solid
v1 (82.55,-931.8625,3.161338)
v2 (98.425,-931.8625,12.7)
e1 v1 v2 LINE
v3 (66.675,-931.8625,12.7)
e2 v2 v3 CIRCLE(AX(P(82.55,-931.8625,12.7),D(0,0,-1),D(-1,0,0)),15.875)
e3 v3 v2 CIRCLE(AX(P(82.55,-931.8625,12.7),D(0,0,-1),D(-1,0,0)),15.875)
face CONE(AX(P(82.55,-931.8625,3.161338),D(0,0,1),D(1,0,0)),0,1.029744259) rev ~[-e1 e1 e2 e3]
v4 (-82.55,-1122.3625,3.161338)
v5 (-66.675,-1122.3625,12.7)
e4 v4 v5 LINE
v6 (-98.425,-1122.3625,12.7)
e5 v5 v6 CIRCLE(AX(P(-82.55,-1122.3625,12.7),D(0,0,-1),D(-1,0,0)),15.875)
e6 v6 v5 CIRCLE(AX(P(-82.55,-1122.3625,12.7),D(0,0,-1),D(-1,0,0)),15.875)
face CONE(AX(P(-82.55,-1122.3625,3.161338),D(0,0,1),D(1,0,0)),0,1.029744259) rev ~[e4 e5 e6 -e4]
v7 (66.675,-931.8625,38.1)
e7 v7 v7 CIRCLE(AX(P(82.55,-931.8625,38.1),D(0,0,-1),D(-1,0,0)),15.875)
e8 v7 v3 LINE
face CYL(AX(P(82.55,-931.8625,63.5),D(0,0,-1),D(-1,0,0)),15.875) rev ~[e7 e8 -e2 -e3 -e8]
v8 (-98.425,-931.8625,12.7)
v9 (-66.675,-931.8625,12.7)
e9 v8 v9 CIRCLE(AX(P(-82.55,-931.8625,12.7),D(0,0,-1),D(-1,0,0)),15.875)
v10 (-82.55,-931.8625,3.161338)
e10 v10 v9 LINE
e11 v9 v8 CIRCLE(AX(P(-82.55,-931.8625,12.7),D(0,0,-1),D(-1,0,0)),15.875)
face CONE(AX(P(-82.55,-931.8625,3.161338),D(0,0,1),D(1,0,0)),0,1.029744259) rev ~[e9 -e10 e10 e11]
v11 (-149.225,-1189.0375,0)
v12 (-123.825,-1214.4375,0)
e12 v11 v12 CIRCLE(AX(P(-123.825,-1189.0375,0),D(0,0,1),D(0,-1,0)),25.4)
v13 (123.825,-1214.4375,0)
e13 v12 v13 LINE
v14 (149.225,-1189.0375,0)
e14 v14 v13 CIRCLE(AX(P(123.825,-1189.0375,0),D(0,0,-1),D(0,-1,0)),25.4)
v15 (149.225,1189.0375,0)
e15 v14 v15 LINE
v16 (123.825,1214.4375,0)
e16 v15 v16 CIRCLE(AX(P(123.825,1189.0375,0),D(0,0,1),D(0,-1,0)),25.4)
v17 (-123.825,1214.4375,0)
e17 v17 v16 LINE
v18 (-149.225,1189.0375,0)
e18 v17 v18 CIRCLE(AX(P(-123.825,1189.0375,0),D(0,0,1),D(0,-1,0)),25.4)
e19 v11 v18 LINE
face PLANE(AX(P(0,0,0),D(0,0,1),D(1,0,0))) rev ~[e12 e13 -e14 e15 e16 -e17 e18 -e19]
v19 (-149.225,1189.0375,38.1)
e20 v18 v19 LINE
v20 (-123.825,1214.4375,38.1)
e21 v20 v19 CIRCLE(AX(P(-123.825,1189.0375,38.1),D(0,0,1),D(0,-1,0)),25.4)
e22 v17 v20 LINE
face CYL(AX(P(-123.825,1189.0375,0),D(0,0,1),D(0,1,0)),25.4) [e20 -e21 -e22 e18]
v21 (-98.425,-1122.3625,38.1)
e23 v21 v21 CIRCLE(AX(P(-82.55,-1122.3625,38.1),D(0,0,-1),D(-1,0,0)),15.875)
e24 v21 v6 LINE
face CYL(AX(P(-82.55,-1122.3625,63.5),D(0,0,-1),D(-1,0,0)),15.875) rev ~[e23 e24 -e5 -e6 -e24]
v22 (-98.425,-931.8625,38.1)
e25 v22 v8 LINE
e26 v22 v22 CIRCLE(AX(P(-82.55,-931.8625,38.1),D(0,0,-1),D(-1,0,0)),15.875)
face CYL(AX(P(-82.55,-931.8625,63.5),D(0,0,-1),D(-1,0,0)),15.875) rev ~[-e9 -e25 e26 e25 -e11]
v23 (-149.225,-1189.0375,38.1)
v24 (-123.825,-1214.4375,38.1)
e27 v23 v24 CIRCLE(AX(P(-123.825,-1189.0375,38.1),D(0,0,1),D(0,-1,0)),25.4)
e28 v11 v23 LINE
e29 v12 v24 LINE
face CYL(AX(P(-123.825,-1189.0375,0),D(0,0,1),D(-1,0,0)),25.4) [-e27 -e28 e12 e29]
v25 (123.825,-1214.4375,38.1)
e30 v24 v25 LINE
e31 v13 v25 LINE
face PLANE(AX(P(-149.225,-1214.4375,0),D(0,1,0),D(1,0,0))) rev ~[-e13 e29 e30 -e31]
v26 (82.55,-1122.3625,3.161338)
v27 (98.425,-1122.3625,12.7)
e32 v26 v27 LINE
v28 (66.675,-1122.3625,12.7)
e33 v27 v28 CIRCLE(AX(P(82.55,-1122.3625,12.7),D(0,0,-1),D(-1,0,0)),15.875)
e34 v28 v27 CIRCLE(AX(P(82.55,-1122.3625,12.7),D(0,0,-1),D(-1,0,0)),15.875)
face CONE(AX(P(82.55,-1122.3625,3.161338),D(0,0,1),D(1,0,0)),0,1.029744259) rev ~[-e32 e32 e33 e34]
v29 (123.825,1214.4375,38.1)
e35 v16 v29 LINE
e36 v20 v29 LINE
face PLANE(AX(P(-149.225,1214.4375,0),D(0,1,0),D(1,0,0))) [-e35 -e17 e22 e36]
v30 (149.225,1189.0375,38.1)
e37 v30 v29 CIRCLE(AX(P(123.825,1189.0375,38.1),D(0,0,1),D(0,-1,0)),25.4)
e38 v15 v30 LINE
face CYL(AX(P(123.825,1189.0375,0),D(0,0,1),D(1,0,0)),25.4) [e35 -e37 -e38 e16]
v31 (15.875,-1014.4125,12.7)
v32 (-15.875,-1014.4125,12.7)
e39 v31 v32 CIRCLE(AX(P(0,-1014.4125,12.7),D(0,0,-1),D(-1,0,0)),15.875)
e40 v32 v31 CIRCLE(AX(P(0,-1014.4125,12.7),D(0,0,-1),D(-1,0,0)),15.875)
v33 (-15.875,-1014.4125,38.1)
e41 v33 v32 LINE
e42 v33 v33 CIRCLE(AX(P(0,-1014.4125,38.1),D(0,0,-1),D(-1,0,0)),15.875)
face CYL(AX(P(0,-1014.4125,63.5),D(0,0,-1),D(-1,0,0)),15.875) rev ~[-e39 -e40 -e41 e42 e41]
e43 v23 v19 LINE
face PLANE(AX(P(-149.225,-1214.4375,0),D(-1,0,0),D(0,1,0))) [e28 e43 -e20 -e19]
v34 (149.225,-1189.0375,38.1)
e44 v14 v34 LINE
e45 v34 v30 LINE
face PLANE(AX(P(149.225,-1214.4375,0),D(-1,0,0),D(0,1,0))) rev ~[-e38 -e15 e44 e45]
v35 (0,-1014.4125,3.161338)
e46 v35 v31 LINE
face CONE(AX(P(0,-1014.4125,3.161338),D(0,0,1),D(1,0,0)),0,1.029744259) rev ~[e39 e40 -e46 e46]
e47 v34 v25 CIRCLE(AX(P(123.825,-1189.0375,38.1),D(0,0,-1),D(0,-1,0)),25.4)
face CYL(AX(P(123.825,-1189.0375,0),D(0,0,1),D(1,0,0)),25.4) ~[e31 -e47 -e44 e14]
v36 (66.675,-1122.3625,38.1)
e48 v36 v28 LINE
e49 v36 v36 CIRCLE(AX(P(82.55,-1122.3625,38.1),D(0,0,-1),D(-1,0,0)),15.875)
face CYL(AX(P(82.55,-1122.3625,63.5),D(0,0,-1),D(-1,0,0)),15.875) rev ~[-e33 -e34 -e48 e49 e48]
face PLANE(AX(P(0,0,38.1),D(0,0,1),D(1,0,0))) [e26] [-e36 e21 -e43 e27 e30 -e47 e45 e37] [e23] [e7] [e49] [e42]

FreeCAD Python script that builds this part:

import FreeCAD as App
import Part
import Sketcher
Q = App.Units.Quantity


def edges_at(feature, points):
    """Names of the edges that pass closest to the given points."""
    edges = feature.Shape.Edges
    near = lambda p: min(range(len(edges)), key=lambda i: edges[i].distToShape(Part.Vertex(*p))[0])
    return sorted({f"Edge{near(p) + 1}" for p in points})

doc = App.newDocument("Part")
params = doc.addObject("Spreadsheet::Sheet", "Params")
for row, (alias, value) in enumerate([
    ("sketch1_width", "11.75 in"),
    ("sketch1_height", "95.625 in"),
    ("pad1_length", "1.5 in"),
    ("fillet_radius", "1 in"),
    ("fillet2_radius", "1 in"),
    ("fillet3_radius", "1 in"),
    ("sketch2_diameter", "1.25 in"),
    ("hole_diameter", "1.25 in"),
    ("hole_depth", "1 in"),
], start=1):
    params.set(f"A{row}", alias)
    params.set(f"B{row}", "=" + value)
    params.setAlias(f"B{row}", alias)

body = doc.addObject("PartDesign::Body", "Body")

sketch1 = doc.addObject("Sketcher::SketchObject", "Sketch")
body.addObject(sketch1)
sketch1.AttachmentSupport = (doc.XY_Plane, [""])
sketch1.MapMode = "FlatFace"
sketch1.addGeometry(Part.LineSegment(App.Vector(-149.225, 1214.4375, 0), App.Vector(-149.225, -1214.4375, 0)), False)
sketch1.addGeometry(Part.LineSegment(App.Vector(-149.225, -1214.4375, 0), App.Vector(149.225, -1214.4375, 0)), False)
sketch1.addGeometry(Part.LineSegment(App.Vector(149.225, -1214.4375, 0), App.Vector(149.225, 1214.4375, 0)), False)
sketch1.addGeometry(Part.LineSegment(App.Vector(149.225, 1214.4375, 0), App.Vector(-149.225, 1214.4375, 0)), False)
sketch1.addConstraint(Sketcher.Constraint("Coincident", 0, 2, 1, 1))
sketch1.addConstraint(Sketcher.Constraint("Coincident", 1, 2, 2, 1))
sketch1.addConstraint(Sketcher.Constraint("Coincident", 2, 2, 3, 1))
sketch1.addConstraint(Sketcher.Constraint("Coincident", 3, 2, 0, 1))
sketch1.addConstraint(Sketcher.Constraint("Vertical", 0))
sketch1.addConstraint(Sketcher.Constraint("Horizontal", 1))
sketch1.addConstraint(Sketcher.Constraint("Vertical", 2))
sketch1.addConstraint(Sketcher.Constraint("Horizontal", 3))
sketch1.addConstraint(Sketcher.Constraint("Symmetric", 0, 2, 2, 2, -1, 1))
sketch1.addConstraint(Sketcher.Constraint("DistanceX", 1, 1, 1, 2, Q("11.75 in")))
sketch1.addConstraint(Sketcher.Constraint("DistanceY", 0, 2, 0, 1, Q("95.625 in")))
sketch1.setExpression("Constraints[9]", "Params.sketch1_width")
sketch1.setExpression("Constraints[10]", "Params.sketch1_height")
pad1 = doc.addObject("PartDesign::Pad", "Pad")
body.addObject(pad1)
pad1.Profile = sketch1
pad1.setExpression("Length", "Params.pad1_length")
doc.recompute()

fillet = doc.addObject("PartDesign::Fillet", "Fillet")
body.addObject(fillet)
fillet.Base = (pad1, edges_at(pad1, [(149.225, 1214.438, 19.05)]))
fillet.setExpression("Radius", "Params.fillet_radius")
doc.recompute()

fillet2 = doc.addObject("PartDesign::Fillet", "Fillet001")
body.addObject(fillet2)
fillet2.Base = (fillet, edges_at(fillet, [(-149.225, 1214.438, 19.05)]))
fillet2.setExpression("Radius", "Params.fillet2_radius")
doc.recompute()

fillet3 = doc.addObject("PartDesign::Fillet", "Fillet002")
body.addObject(fillet3)
fillet3.Base = (fillet2, edges_at(fillet2, [(-149.225, -1214.438, 19.05), (149.225, -1214.438, 19.05)]))
fillet3.setExpression("Radius", "Params.fillet3_radius")

sketch2 = doc.addObject("Sketcher::SketchObject", "Sketch001")
body.addObject(sketch2)
sketch2.AttachmentSupport = (doc.XY_Plane, [""])
sketch2.MapMode = "FlatFace"
sketch2.AttachmentOffset = App.Placement(App.Vector(0, 0, 1.5 * 25.4), App.Rotation())
sketch2.addGeometry(Part.Circle(App.Vector(-82.55, -1122.3625, 0), App.Vector(0, 0, 1), 15.875), False)
sketch2.addGeometry(Part.Circle(App.Vector(82.55, -1122.3625, 0), App.Vector(0, 0, 1), 15.875), False)
sketch2.addGeometry(Part.Circle(App.Vector(0, -1014.4125, 0), App.Vector(0, 0, 1), 15.875), False)
sketch2.addGeometry(Part.Circle(App.Vector(82.55, -931.8625, 0), App.Vector(0, 0, 1), 15.875), False)
sketch2.addGeometry(Part.Circle(App.Vector(-82.55, -931.8625, 0), App.Vector(0, 0, 1), 15.875), False)
sketch2.addConstraint(Sketcher.Constraint("Equal", 0, 1))
sketch2.addConstraint(Sketcher.Constraint("Equal", 1, 2))
sketch2.addConstraint(Sketcher.Constraint("Equal", 2, 3))
sketch2.addConstraint(Sketcher.Constraint("Equal", 3, 4))
sketch2.addConstraint(Sketcher.Constraint("Symmetric", 0, 3, 1, 3, -2))
sketch2.addConstraint(Sketcher.Constraint("Symmetric", 3, 3, 4, 3, -2))
sketch2.addConstraint(Sketcher.Constraint("PointOnObject", 2, 3, -2))
sketch2.addConstraint(Sketcher.Constraint("Vertical", 1, 3, 3, 3))
sketch2.addConstraint(Sketcher.Constraint("Diameter", 0, Q("1.25 in")))
sketch2.addConstraint(Sketcher.Constraint("DistanceX", 0, 3, 1, 3, Q("6.5 in")))
sketch2.addConstraint(Sketcher.Constraint("DistanceY", 1, 3, 3, 3, Q("7.5 in")))
sketch2.addConstraint(Sketcher.Constraint("DistanceY", 0, 3, 2, 3, Q("4.25 in")))
sketch2.addConstraint(Sketcher.Constraint("DistanceY", 0, 3, -1, 1, Q("44.1875 in")))
sketch2.setExpression("Constraints[8]", "Params.sketch2_diameter")
doc.recompute()
hole = doc.addObject("PartDesign::Hole", "Hole")
body.addObject(hole)
hole.Profile = sketch2
hole.ThreadType = "None"
hole.setExpression("Diameter", "Params.hole_diameter")
hole.DepthType = "Dimension"
hole.setExpression("Depth", "Params.hole_depth")
hole.DrillPoint = "Angled"
hole.DrillPointAngle = 118

doc.recompute()
